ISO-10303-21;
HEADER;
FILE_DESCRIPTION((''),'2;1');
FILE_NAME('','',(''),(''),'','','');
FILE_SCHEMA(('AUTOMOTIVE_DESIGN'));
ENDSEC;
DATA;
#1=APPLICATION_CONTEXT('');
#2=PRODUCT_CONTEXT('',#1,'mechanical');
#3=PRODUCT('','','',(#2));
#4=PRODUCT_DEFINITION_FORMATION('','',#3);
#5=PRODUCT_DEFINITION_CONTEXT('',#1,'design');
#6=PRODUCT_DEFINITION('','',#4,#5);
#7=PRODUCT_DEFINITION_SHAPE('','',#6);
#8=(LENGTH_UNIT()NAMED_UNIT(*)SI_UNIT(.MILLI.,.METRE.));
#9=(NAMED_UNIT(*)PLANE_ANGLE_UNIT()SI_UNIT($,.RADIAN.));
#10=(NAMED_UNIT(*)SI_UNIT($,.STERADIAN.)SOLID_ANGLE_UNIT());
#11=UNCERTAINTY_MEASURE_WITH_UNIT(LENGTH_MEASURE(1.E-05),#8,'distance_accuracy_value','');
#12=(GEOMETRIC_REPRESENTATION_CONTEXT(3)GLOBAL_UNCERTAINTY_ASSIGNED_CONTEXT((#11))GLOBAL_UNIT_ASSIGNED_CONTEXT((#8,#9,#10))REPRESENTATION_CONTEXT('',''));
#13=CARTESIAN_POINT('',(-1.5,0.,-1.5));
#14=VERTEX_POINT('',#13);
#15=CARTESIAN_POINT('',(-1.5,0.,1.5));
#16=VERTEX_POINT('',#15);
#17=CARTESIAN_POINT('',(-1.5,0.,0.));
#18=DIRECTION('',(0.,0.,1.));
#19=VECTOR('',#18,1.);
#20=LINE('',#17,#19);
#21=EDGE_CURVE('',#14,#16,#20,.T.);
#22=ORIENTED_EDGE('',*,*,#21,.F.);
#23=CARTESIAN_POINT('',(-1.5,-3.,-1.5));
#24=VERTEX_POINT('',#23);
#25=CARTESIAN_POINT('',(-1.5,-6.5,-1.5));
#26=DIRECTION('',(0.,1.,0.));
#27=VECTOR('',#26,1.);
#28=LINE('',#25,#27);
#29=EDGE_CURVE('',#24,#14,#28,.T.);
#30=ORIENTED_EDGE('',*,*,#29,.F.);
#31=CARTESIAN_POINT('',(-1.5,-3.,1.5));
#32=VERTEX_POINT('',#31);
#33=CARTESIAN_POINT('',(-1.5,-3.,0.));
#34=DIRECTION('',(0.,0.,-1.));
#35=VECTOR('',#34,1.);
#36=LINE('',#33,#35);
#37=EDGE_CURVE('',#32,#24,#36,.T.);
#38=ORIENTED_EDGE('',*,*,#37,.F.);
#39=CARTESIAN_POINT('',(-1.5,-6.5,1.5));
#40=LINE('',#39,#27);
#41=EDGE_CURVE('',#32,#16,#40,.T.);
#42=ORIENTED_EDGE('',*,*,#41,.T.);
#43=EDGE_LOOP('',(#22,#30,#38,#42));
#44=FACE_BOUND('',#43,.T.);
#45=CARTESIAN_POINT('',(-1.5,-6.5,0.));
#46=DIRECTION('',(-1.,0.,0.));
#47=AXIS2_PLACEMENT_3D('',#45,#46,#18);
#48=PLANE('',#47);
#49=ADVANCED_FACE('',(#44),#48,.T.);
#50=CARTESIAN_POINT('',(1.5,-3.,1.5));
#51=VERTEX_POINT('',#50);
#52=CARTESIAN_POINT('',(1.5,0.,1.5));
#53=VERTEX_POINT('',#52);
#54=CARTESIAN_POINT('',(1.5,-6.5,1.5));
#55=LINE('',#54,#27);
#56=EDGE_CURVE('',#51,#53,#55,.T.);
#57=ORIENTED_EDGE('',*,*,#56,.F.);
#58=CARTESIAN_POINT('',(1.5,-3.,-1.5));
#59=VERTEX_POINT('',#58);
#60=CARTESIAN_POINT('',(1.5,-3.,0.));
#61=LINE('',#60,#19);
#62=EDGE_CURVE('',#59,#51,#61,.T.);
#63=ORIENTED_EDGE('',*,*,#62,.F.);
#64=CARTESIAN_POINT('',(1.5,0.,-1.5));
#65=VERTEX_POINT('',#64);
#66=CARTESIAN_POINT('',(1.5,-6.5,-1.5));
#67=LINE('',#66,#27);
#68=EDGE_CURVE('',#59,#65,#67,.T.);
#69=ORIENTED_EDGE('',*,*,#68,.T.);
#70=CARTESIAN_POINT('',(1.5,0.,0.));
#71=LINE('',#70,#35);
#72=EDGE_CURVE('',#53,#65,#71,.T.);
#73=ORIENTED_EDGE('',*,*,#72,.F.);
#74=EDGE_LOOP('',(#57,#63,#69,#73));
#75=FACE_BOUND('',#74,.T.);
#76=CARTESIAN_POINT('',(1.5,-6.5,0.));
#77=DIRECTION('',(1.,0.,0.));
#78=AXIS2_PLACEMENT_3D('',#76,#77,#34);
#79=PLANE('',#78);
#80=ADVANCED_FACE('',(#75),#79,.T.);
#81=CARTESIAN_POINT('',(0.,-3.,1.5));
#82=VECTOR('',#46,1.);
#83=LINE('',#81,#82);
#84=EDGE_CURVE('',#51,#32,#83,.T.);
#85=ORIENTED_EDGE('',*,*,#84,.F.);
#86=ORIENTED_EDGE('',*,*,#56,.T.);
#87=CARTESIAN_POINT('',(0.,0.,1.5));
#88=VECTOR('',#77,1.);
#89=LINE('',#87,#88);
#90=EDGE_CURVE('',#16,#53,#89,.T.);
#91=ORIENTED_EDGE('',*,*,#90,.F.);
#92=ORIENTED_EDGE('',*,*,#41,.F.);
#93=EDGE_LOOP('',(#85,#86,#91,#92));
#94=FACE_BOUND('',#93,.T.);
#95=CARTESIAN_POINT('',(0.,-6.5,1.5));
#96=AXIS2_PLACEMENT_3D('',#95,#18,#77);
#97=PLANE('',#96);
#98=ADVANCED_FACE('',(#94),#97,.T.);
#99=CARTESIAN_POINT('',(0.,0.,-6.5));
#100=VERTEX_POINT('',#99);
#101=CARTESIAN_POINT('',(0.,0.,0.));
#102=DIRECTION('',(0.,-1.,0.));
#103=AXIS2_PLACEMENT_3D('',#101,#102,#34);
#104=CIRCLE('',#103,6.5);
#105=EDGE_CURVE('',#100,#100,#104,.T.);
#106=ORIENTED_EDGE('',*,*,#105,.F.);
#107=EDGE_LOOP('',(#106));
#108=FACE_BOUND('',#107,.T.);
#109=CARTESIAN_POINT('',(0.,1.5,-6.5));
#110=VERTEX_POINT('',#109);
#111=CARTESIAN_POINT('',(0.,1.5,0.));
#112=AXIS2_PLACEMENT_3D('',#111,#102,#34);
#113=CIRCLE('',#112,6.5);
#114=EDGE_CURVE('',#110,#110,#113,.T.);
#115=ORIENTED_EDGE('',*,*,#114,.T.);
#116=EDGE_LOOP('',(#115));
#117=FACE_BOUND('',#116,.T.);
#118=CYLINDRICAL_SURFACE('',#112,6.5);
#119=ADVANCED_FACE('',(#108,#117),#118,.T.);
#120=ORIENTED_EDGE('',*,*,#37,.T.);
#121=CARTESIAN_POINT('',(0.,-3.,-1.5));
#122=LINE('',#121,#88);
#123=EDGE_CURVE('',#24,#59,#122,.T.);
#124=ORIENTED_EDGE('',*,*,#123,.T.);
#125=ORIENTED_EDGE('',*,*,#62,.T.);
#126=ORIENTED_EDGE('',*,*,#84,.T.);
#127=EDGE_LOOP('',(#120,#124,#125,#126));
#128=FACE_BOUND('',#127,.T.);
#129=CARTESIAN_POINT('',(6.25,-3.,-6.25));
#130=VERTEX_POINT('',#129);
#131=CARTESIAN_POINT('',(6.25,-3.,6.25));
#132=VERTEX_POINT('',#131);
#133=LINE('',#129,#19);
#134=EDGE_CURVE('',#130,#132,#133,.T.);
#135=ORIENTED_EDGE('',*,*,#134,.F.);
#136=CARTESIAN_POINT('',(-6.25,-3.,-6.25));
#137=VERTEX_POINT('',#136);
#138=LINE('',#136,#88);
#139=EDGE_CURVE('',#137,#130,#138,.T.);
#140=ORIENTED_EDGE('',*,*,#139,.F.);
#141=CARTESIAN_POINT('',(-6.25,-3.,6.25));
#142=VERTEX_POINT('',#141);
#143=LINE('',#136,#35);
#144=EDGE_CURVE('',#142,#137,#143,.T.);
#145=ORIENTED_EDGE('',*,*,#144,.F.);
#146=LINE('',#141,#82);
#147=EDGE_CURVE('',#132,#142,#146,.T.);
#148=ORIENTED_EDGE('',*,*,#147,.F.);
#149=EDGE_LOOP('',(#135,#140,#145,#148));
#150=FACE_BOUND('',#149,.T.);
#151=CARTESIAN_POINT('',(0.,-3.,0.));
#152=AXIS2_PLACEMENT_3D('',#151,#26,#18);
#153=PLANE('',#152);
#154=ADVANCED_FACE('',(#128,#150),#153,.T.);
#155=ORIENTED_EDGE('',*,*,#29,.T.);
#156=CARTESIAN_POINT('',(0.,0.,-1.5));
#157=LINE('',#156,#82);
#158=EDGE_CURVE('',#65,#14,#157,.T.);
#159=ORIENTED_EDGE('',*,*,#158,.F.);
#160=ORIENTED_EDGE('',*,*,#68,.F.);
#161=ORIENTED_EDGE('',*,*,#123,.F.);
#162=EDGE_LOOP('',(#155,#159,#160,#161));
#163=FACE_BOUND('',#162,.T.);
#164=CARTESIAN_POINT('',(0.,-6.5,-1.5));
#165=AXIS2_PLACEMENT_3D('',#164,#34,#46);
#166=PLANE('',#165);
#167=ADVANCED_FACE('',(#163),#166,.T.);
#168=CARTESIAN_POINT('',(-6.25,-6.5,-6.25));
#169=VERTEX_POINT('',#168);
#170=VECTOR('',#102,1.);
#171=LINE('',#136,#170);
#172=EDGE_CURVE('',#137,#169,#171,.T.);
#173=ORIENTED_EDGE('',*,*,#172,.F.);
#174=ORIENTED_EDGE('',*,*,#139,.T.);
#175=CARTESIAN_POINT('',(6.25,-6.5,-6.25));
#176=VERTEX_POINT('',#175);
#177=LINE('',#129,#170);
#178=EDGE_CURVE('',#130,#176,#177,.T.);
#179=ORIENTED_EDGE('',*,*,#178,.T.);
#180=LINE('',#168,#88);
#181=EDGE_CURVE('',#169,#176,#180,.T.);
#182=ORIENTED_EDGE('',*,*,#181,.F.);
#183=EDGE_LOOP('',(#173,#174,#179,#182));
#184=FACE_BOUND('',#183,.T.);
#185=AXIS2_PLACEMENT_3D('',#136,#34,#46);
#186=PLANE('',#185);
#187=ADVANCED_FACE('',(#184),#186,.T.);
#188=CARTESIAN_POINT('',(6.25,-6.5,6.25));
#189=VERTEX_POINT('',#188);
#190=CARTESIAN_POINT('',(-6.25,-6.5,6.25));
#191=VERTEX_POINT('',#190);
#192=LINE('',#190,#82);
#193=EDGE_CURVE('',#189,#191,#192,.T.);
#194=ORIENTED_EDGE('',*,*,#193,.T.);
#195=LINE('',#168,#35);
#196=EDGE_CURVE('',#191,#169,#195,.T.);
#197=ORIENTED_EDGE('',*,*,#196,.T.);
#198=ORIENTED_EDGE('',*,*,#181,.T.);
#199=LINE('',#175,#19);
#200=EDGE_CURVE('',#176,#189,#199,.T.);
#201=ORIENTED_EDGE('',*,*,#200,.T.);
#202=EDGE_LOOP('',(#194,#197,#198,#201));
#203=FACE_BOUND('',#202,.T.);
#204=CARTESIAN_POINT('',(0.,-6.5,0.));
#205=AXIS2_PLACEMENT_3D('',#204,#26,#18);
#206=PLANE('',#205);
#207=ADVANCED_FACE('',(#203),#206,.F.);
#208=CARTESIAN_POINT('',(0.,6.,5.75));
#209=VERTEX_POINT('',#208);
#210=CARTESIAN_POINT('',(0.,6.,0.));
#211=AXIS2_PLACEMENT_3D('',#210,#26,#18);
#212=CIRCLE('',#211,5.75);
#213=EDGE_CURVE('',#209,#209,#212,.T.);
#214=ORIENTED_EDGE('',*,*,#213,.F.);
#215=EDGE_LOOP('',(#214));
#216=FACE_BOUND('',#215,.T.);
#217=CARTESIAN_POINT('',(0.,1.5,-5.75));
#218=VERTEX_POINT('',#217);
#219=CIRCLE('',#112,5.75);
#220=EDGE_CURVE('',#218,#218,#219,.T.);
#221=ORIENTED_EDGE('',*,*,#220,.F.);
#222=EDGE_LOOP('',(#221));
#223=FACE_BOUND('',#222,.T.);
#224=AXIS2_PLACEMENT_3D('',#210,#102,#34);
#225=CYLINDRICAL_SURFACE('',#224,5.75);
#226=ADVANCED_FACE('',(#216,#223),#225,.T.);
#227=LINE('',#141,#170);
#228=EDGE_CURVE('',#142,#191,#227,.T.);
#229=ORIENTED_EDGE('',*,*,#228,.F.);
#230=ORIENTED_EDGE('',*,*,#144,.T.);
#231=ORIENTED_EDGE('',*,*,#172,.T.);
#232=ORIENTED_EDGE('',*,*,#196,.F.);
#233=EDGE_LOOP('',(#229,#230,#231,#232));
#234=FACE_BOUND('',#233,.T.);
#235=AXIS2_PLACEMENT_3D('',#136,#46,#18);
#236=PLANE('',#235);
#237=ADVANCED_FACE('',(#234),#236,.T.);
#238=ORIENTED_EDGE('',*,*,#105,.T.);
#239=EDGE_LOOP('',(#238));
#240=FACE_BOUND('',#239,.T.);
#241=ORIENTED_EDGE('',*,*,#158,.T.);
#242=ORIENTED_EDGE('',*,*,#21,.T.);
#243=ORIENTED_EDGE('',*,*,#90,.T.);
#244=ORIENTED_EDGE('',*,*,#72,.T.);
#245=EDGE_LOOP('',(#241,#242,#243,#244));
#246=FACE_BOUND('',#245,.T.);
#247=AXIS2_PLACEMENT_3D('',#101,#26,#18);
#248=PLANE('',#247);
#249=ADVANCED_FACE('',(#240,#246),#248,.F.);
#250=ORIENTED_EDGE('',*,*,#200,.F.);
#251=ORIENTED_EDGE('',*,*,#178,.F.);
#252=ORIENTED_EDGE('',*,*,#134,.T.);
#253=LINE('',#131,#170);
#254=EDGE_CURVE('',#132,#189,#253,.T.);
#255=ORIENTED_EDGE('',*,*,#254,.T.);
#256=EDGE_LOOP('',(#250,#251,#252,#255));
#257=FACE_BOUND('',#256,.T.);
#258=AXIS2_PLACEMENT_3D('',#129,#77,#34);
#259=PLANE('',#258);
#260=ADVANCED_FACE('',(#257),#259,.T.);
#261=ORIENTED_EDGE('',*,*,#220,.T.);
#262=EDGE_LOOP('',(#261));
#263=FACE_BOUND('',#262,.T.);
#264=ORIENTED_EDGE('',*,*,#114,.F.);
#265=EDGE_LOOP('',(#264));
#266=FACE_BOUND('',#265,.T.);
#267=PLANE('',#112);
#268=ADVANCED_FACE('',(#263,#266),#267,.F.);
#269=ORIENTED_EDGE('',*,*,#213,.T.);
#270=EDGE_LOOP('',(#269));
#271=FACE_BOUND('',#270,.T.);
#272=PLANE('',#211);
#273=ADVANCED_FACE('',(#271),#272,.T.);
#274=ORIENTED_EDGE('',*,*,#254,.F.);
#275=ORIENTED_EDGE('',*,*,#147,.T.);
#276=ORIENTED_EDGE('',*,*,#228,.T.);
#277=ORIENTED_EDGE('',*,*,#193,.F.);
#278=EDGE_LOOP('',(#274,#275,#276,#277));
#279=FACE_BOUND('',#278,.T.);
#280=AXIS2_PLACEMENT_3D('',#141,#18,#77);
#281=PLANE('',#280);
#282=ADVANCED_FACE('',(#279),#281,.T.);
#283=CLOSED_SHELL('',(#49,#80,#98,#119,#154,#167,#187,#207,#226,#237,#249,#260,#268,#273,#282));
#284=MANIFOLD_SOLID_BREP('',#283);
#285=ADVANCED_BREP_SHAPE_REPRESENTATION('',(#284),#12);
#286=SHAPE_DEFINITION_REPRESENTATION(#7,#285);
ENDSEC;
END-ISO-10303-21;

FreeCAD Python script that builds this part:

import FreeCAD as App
import Part
import Sketcher

V = App.Vector

doc = App.newDocument("Part")
params = doc.addObject("Spreadsheet::Sheet", "Params")
for row, (alias, value) in enumerate([
    ("sketch1_diameter", "11.5 mm"),
    ("pad1_length", "6 mm"),
    ("sketch2_diameter", "13 mm"),
    ("pad2_length", "1.5 mm"),
    ("sketch3_width", "3 mm"),
    ("pad3_length", "12.5 mm"),
    ("sketch4_width", "12.5 mm"),
    ("pad4_length", "3.5 mm"),
], start=1):
    params.set(f"A{row}", alias)
    params.set(f"B{row}", "=" + value)
    params.setAlias(f"B{row}", alias)

body = doc.addObject("PartDesign::Body", "Body")

# Sketch on XZ plane
sketch1 = body.newObject("Sketcher::SketchObject", "Sketch")
sketch1.AttachmentSupport = (doc.getObject("XZ_Plane"), [""])
sketch1.MapMode = "FlatFace"
sketch1.addGeometry(Part.Circle(V(0, 0, 0), V(0, 0, 1), 6), False)
sketch1.addConstraint([
    Sketcher.Constraint("Coincident", 0, 3, -1, 1),
    Sketcher.Constraint("Diameter", 0, 11.5),
])
sketch1.setExpression("Constraints[1]", "Params.sketch1_diameter")
pad1 = body.newObject("PartDesign::Pad", "Pad")
pad1.Profile = sketch1
pad1.setExpression("Length", "Params.pad1_length")
pad1.Reversed = True

# Sketch on XZ plane
sketch2 = body.newObject("Sketcher::SketchObject", "Sketch001")
sketch2.AttachmentSupport = (doc.getObject("XZ_Plane"), [""])
sketch2.MapMode = "FlatFace"
sketch2.addGeometry(Part.Circle(V(0, 0, 0), V(0, 0, 1), 6), False)
sketch2.addConstraint([
    Sketcher.Constraint("Coincident", 0, 3, -1, 1),
    Sketcher.Constraint("Diameter", 0, 13.0),
])
sketch2.setExpression("Constraints[1]", "Params.sketch2_diameter")
pad2 = body.newObject("PartDesign::Pad", "Pad001")
pad2.Profile = sketch2
pad2.setExpression("Length", "Params.pad2_length")
pad2.Reversed = True

# Sketch on XZ plane
sketch3 = body.newObject("Sketcher::SketchObject", "Sketch002")
sketch3.AttachmentSupport = (doc.getObject("XZ_Plane"), [""])
sketch3.MapMode = "FlatFace"
sketch3.AttachmentOffset = App.Placement(V(0, 0, -6), App.Rotation())
sketch3.addGeometry([
    Part.LineSegment(V(-1.5, 1.5, 0), V(-1.5, -1.5, 0)),
    Part.LineSegment(V(-1.5, -1.5, 0), V(1.5, -1.5, 0)),
    Part.LineSegment(V(1.5, -1.5, 0), V(1.5, 1.5, 0)),
    Part.LineSegment(V(1.5, 1.5, 0), V(-1.5, 1.5, 0)),
], False)
sketch3.addConstraint([
    Sketcher.Constraint("Coincident", 0, 2, 1, 1),
    Sketcher.Constraint("Coincident", 1, 2, 2, 1),
    Sketcher.Constraint("Coincident", 2, 2, 3, 1),
    Sketcher.Constraint("Coincident", 3, 2, 0, 1),
    Sketcher.Constraint("Vertical", 0),
    Sketcher.Constraint("Horizontal", 1),
    Sketcher.Constraint("Vertical", 2),
    Sketcher.Constraint("Horizontal", 3),
    Sketcher.Constraint("Symmetric", 0, 2, 2, 2, -1, 1),
    Sketcher.Constraint("Equal", 3, 0),
    Sketcher.Constraint("DistanceX", 1, 1, 1, 2, 3.0),
])
sketch3.setExpression("Constraints[10]", "Params.sketch3_width")
pad3 = body.newObject("PartDesign::Pad", "Pad002")
pad3.Profile = sketch3
pad3.setExpression("Length", "Params.pad3_length")

# Sketch on XZ plane
sketch4 = body.newObject("Sketcher::SketchObject", "Sketch003")
sketch4.AttachmentSupport = (doc.getObject("XZ_Plane"), [""])
sketch4.MapMode = "FlatFace"
sketch4.AttachmentOffset = App.Placement(V(0, 0, 6.5), App.Rotation())
sketch4.addGeometry([
    Part.LineSegment(V(-6, 6, 0), V(-6, -6, 0)),
    Part.LineSegment(V(-6, -6, 0), V(6, -6, 0)),
    Part.LineSegment(V(6, -6, 0), V(6, 6, 0)),
    Part.LineSegment(V(6, 6, 0), V(-6, 6, 0)),
], False)
sketch4.addConstraint([
    Sketcher.Constraint("Coincident", 0, 2, 1, 1),
    Sketcher.Constraint("Coincident", 1, 2, 2, 1),
    Sketcher.Constraint("Coincident", 2, 2, 3, 1),
    Sketcher.Constraint("Coincident", 3, 2, 0, 1),
    Sketcher.Constraint("Vertical", 0),
    Sketcher.Constraint("Horizontal", 1),
    Sketcher.Constraint("Vertical", 2),
    Sketcher.Constraint("Horizontal", 3),
    Sketcher.Constraint("Symmetric", 0, 2, 2, 2, -1, 1),
    Sketcher.Constraint("Equal", 3, 0),
    Sketcher.Constraint("DistanceX", 1, 1, 1, 2, 12.5),
])
sketch4.setExpression("Constraints[10]", "Params.sketch4_width")
pad4 = body.newObject("PartDesign::Pad", "Pad003")
pad4.Profile = sketch4
pad4.setExpression("Length", "Params.pad4_length")
pad4.Reversed = True

doc.recompute()
